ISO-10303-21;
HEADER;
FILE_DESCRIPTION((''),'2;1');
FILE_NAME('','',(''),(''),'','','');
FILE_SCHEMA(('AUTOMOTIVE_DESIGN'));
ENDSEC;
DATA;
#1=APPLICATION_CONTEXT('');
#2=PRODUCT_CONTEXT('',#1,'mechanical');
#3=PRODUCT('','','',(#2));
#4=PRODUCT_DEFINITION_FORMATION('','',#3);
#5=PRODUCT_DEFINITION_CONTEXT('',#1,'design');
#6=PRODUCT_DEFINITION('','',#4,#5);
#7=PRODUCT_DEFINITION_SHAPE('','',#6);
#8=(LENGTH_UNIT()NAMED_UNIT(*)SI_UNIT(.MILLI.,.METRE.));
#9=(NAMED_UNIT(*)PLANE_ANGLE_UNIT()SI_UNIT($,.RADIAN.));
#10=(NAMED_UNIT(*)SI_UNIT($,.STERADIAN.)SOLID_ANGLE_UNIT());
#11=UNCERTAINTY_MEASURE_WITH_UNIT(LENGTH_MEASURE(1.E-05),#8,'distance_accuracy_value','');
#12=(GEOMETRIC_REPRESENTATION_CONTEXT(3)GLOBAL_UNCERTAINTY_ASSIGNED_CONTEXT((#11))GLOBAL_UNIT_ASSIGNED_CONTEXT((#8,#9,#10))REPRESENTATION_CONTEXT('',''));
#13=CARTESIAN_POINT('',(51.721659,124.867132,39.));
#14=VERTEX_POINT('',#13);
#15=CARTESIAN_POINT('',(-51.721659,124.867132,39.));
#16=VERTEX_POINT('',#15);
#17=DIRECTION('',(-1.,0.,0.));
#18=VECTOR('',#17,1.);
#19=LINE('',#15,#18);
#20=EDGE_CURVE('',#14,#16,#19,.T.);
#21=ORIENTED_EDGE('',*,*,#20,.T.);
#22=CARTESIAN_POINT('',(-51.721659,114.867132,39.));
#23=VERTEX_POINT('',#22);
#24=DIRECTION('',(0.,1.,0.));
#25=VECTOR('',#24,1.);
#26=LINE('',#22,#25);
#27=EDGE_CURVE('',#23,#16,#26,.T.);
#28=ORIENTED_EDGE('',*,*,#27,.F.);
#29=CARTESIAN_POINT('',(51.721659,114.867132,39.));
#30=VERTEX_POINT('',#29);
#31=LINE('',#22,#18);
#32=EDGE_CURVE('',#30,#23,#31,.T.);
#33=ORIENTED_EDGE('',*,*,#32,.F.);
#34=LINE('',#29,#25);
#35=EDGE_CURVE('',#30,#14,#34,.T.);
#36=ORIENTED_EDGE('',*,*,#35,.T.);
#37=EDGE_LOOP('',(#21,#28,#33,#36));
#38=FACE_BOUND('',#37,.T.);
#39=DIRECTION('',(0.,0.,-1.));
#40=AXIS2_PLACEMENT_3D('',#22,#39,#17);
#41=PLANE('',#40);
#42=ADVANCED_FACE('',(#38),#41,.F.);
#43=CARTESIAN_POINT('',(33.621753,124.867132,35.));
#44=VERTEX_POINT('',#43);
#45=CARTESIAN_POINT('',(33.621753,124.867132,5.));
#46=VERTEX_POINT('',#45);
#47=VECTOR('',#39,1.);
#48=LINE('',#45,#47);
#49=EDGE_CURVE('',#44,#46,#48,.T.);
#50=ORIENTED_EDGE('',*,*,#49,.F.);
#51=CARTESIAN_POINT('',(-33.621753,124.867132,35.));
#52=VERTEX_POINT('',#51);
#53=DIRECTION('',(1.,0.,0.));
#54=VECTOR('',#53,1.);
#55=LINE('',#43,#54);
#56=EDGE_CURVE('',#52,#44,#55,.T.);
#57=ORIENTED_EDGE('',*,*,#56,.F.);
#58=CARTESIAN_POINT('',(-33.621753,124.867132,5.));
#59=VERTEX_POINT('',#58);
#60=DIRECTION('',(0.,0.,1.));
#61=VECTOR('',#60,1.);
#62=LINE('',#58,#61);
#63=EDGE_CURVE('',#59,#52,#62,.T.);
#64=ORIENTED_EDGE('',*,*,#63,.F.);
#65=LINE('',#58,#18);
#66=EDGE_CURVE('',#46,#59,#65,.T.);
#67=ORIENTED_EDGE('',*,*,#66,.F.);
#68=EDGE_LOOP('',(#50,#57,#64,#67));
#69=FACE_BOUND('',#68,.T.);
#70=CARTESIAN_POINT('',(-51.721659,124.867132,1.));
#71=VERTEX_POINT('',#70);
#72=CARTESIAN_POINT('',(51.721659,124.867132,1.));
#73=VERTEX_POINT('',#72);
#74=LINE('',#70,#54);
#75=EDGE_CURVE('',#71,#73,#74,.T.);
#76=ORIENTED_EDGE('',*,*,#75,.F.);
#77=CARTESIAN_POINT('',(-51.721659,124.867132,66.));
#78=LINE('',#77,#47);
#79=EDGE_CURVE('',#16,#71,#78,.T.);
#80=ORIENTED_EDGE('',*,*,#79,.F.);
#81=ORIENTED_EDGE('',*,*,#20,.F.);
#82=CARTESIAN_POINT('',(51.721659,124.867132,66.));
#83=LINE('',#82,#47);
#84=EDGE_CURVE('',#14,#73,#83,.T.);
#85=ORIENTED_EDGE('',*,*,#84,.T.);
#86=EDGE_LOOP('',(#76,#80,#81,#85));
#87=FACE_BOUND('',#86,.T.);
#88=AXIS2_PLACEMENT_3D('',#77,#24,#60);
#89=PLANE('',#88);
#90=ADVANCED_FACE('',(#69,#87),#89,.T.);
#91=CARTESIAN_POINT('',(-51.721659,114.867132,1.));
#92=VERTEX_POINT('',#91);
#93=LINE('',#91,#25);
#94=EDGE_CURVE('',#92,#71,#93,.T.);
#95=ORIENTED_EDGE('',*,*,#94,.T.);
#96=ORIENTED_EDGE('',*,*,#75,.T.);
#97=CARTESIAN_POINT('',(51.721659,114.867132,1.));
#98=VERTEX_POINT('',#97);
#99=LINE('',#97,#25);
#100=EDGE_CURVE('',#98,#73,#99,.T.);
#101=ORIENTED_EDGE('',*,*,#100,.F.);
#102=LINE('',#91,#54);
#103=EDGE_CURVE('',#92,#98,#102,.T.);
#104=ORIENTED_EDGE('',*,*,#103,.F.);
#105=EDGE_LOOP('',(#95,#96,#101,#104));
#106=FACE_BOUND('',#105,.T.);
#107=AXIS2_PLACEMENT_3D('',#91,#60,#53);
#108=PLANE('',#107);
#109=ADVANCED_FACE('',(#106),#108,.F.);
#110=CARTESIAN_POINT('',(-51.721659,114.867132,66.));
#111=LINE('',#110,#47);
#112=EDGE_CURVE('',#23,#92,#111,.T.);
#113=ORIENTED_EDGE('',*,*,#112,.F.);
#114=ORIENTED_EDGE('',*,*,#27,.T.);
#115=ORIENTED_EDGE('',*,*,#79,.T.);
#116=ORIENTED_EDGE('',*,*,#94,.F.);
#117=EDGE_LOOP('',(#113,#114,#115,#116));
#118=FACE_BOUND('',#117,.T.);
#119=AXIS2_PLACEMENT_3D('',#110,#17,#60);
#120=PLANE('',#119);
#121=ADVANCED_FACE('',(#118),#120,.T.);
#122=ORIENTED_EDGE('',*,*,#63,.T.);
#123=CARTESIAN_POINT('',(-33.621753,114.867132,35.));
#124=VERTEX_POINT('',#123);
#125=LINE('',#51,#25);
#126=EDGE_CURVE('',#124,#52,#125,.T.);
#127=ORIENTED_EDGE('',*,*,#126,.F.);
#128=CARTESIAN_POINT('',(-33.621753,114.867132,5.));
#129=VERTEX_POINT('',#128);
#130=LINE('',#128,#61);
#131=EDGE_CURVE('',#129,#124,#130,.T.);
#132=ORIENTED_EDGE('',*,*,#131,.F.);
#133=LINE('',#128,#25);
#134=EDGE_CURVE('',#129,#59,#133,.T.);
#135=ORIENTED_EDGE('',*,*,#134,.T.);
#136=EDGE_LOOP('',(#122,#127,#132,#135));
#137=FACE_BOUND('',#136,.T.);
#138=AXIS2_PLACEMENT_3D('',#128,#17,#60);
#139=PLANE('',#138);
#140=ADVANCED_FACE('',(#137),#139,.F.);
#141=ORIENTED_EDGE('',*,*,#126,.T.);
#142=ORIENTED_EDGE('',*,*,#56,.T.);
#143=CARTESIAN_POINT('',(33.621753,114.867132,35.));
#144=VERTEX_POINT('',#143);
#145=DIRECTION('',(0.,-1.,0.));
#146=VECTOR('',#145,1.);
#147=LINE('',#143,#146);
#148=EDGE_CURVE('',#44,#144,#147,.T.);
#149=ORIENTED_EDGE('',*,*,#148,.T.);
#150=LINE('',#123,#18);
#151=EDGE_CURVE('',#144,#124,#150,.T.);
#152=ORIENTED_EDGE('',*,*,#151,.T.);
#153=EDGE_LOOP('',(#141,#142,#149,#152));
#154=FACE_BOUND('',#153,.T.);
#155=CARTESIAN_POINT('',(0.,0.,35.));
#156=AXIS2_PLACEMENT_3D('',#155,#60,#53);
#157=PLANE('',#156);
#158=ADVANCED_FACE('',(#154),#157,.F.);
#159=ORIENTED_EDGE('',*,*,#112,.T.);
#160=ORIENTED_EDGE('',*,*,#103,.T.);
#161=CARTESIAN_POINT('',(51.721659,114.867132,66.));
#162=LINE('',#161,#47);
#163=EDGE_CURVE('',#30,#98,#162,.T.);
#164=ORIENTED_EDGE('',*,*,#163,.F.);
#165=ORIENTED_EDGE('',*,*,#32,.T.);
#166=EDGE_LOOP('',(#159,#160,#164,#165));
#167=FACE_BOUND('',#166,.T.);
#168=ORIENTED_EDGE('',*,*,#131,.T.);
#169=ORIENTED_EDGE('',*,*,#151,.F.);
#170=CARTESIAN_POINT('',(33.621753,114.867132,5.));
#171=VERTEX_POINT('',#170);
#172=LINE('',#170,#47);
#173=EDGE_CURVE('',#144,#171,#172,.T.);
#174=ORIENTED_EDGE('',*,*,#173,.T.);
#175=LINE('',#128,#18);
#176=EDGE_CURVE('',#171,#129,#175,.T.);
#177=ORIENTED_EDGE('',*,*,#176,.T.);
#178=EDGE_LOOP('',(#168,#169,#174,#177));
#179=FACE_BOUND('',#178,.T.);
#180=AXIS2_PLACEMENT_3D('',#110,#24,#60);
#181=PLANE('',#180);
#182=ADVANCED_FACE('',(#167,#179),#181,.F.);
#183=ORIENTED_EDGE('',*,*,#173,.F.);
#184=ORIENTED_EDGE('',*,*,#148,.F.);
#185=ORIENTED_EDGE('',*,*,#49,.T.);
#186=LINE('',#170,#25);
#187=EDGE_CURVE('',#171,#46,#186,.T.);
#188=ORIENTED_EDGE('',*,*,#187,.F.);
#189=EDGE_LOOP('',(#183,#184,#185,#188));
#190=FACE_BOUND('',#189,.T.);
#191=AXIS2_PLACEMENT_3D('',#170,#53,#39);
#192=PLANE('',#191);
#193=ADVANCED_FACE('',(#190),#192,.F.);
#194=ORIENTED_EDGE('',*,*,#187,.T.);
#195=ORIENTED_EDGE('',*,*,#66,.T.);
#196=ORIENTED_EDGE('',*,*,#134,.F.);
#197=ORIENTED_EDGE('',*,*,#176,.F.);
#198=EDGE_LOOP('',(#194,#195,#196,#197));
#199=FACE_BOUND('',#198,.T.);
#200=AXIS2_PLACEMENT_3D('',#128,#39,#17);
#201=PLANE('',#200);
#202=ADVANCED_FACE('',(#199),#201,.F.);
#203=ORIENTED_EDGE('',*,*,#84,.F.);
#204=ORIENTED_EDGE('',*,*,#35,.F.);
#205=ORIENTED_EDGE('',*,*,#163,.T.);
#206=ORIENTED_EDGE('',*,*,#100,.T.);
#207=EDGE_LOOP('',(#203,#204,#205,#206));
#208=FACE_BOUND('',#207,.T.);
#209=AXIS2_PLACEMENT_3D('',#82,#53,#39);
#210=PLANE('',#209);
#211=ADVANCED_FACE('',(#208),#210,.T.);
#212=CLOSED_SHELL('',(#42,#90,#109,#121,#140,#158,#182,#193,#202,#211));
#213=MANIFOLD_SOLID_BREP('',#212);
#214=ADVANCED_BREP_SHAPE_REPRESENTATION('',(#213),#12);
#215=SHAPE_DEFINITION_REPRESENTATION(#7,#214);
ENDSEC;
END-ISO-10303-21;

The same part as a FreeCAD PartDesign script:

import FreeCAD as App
import Part
import Sketcher
from FreeCAD import Vector


def add_polygon(sketch, points):
    """Adds a closed chain of lines whose ends are joined by coincident constraints."""
    first, n = sketch.GeometryCount, len(points)
    for a, b in zip(points, points[1:] + points[:1]):
        sketch.addGeometry(Part.LineSegment(App.Vector(*a, 0), App.Vector(*b, 0)), False)
    for i in range(n):
        sketch.addConstraint(Sketcher.Constraint("Coincident", first + i, 2, first + (i + 1) % n, 1))

doc = App.newDocument("Part")
body = doc.addObject("PartDesign::Body", "Body")

sketch1 = body.newObject("Sketcher::SketchObject", "Sketch")
sketch1.AttachmentSupport = (doc.getObject("XY_Plane"), [""])
sketch1.MapMode = "FlatFace"
add_polygon(sketch1, [(-52, 125), (-52, 115), (52, 115), (52, 125)])
sketch1.addConstraint([
    Sketcher.Constraint("Vertical", 0),
    Sketcher.Constraint("Horizontal", 1),
    Sketcher.Constraint("Vertical", 2),
    Sketcher.Constraint("Horizontal", 3),
    Sketcher.Constraint("DistanceY", 0, 2, 0, 1, 10.0),
    Sketcher.Constraint("DistanceX", 1, 1, 1, 2, 103.443319),
    Sketcher.Constraint("DistanceX", 0, 2, -1, 1, 51.721659),
    Sketcher.Constraint("DistanceY", -1, 1, 0, 2, 114.867132),
])
pad1 = body.newObject("PartDesign::Pad", "Pad")
pad1.Profile = sketch1
pad1.Length = 66

sketch2 = body.newObject("Sketcher::SketchObject", "Sketch001")
sketch2.AttachmentSupport = (doc.getObject("XZ_Plane"), [""])
sketch2.MapMode = "FlatFace"
sketch2.AttachmentOffset = App.Placement(Vector(0, 0, -124.867132), App.Rotation())
add_polygon(sketch2, [(-34, 5), (-34, 61), (34, 61), (34, 5)])
sketch2.addConstraint([
    Sketcher.Constraint("Vertical", 0),
    Sketcher.Constraint("Horizontal", 1),
    Sketcher.Constraint("Vertical", 2),
    Sketcher.Constraint("Horizontal", 3),
    Sketcher.Constraint("DistanceY", 0, 1, 0, 2, 56.0),
    Sketcher.Constraint("DistanceY", -1, 1, 0, 2, 61.0),
    Sketcher.Constraint("DistanceX", 1, 1, 1, 2, 67.243506),
    Sketcher.Constraint("DistanceX", 0, 2, -1, 1, 33.621753),
])
pocket1 = body.newObject("PartDesign::Pocket", "Pocket")
pocket1.Profile = sketch2
pocket1.Length = 10
pocket1.Reversed = True

sketch3 = body.newObject("Sketcher::SketchObject", "Sketch002")
sketch3.AttachmentSupport = (doc.getObject("XY_Plane"), [""])
sketch3.MapMode = "FlatFace"
sketch3.AttachmentOffset = App.Placement(Vector(0, 0, 61), App.Rotation())
add_polygon(sketch3, [(34, 125), (34, 115), (-34, 115), (-34, 125)])
sketch3.addConstraint([
    Sketcher.Constraint("Vertical", 0),
    Sketcher.Constraint("Horizontal", 1),
    Sketcher.Constraint("Vertical", 2),
    Sketcher.Constraint("Horizontal", 3),
    Sketcher.Constraint("DistanceY", 0, 2, 0, 1, 10.0),
    Sketcher.Constraint("DistanceX", 1, 2, 1, 1, 67.243506),
    Sketcher.Constraint("DistanceY", -1, 1, 0, 2, 114.867132),
    Sketcher.Constraint("DistanceX", -1, 1, 0, 2, 33.621753),
])
pad2 = body.newObject("PartDesign::Pad", "Pad001")
pad2.Profile = sketch3
pad2.Length = 26
pad2.Reversed = True

sketch4 = body.newObject("Sketcher::SketchObject", "Sketch003")
sketch4.AttachmentSupport = (doc.getObject("XZ_Plane"), [""])
sketch4.MapMode = "FlatFace"
sketch4.AttachmentOffset = App.Placement(Vector(0, 0, -124.867132), App.Rotation())
add_polygon(sketch4, [(-51.7, 39), (-51.7, 66), (51.7, 66), (51.7, 39)])
add_polygon(sketch4, [(-51.7, 0), (-51.7, 1), (51.7, 1), (51.7, 0)])
sketch4.addConstraint([
    Sketcher.Constraint("Vertical", 0),
    Sketcher.Constraint("Horizontal", 1),
    Sketcher.Constraint("Vertical", 2),
    Sketcher.Constraint("Horizontal", 3),
    Sketcher.Constraint("Vertical", 4),
    Sketcher.Constraint("Horizontal", 5),
    Sketcher.Constraint("Vertical", 6),
    Sketcher.Constraint("Horizontal", 7),
    Sketcher.Constraint("Symmetric", 6, 2, 7, 2, -1, 1),
    Sketcher.Constraint("Vertical", 3, 2, 4, 2),
    Sketcher.Constraint("Vertical", 2, 2, 5, 2),
    Sketcher.Constraint("DistanceY", 0, 1, 0, 2, 27.0),
    Sketcher.Constraint("DistanceY", 4, 1, 4, 2, 1.0),
    Sketcher.Constraint("DistanceY", -1, 1, 0, 2, 66.0),
    Sketcher.Constraint("DistanceX", 1, 1, 1, 2, 103.443319),
])
pocket2 = body.newObject("PartDesign::Pocket", "Pocket001")
pocket2.Profile = sketch4
pocket2.Length = 10
pocket2.Reversed = True

doc.recompute()
